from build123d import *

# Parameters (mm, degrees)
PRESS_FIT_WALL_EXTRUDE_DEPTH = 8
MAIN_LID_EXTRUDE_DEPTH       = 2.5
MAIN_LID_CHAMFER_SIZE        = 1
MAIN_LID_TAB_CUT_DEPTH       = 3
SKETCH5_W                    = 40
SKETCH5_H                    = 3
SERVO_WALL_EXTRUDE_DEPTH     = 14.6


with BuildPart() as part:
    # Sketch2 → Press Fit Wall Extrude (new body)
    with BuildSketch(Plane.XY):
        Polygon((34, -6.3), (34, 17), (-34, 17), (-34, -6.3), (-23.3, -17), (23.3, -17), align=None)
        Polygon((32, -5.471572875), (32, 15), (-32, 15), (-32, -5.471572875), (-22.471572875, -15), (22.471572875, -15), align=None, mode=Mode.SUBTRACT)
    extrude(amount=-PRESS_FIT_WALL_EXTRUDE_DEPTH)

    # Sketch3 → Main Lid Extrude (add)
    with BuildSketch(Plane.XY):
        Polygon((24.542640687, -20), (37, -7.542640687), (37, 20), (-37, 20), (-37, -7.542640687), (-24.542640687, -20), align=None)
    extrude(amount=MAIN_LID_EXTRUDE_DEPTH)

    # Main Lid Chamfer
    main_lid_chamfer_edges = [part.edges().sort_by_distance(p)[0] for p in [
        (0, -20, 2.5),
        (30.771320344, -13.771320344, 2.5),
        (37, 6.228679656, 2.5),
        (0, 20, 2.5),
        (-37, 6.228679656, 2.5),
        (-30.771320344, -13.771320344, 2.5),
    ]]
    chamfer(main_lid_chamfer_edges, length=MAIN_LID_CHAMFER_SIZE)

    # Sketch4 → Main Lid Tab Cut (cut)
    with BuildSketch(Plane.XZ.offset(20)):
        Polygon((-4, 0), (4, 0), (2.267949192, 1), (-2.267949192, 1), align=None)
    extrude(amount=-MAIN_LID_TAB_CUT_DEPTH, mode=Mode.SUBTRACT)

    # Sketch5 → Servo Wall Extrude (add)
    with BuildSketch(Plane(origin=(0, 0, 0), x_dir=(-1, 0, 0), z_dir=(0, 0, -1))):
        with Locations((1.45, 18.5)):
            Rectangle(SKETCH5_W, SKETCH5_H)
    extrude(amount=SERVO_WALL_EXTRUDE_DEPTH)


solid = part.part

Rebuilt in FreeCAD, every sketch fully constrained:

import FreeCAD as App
import Part
import Sketcher
Q = App.Units.Quantity


def edges_at(feature, points):
    """Names of the edges that pass closest to the given points."""
    edges = feature.Shape.Edges
    near = lambda p: min(range(len(edges)), key=lambda i: edges[i].distToShape(Part.Vertex(*p))[0])
    return sorted({f"Edge{near(p) + 1}" for p in points})

doc = App.newDocument("Part")
body = doc.addObject("PartDesign::Body", "Body")

sketch1 = body.newObject("Sketcher::SketchObject", "Sketch")
sketch1.AttachmentSupport = (doc.getObject("XY_Plane"), [""])
sketch1.MapMode = "FlatFace"
sketch1.addGeometry([
    Part.LineSegment(App.Vector(34, -6, 0), App.Vector(34, 17, 0)),
    Part.LineSegment(App.Vector(34, 17, 0), App.Vector(-34, 17, 0)),
    Part.LineSegment(App.Vector(-34, 17, 0), App.Vector(-34, -6, 0)),
    Part.LineSegment(App.Vector(-34, -6, 0), App.Vector(-23, -17, 0)),
    Part.LineSegment(App.Vector(-23, -17, 0), App.Vector(23, -17, 0)),
    Part.LineSegment(App.Vector(23, -17, 0), App.Vector(34, -6, 0)),
    Part.LineSegment(App.Vector(32, 15, 0), App.Vector(32, -5, 0)),
    Part.LineSegment(App.Vector(32, -5, 0), App.Vector(22, -15, 0)),
    Part.LineSegment(App.Vector(22, -15, 0), App.Vector(-22, -15, 0)),
    Part.LineSegment(App.Vector(-22, -15, 0), App.Vector(-32, -5, 0)),
    Part.LineSegment(App.Vector(-32, -5, 0), App.Vector(-32, 15, 0)),
    Part.LineSegment(App.Vector(-32, 15, 0), App.Vector(32, 15, 0)),
], False)
sketch1.addConstraint([
    Sketcher.Constraint("Coincident", 0, 2, 1, 1),
    Sketcher.Constraint("Coincident", 1, 2, 2, 1),
    Sketcher.Constraint("Coincident", 2, 2, 3, 1),
    Sketcher.Constraint("Coincident", 3, 2, 4, 1),
    Sketcher.Constraint("Coincident", 4, 2, 5, 1),
    Sketcher.Constraint("Coincident", 5, 2, 0, 1),
    Sketcher.Constraint("Coincident", 6, 2, 7, 1),
    Sketcher.Constraint("Coincident", 7, 2, 8, 1),
    Sketcher.Constraint("Coincident", 8, 2, 9, 1),
    Sketcher.Constraint("Coincident", 9, 2, 10, 1),
    Sketcher.Constraint("Coincident", 10, 2, 11, 1),
    Sketcher.Constraint("Coincident", 11, 2, 6, 1),
    Sketcher.Constraint("Vertical", 0),
    Sketcher.Constraint("Horizontal", 1),
    Sketcher.Constraint("Vertical", 2),
    Sketcher.Constraint("Horizontal", 4),
    Sketcher.Constraint("Vertical", 6),
    Sketcher.Constraint("Horizontal", 8),
    Sketcher.Constraint("Vertical", 10),
    Sketcher.Constraint("Horizontal", 11),
    Sketcher.Constraint("Symmetric", 2, 2, 5, 2, -2),
    Sketcher.Constraint("Symmetric", 6, 2, 9, 2, -2),
    Sketcher.Constraint("Perpendicular", 3, 5),
    Sketcher.Constraint("Parallel", 5, 7),
    Sketcher.Constraint("Perpendicular", 7, 9),
    Sketcher.Constraint("Equal", 3, 5),
    Sketcher.Constraint("DistanceX", 1, 2, 1, 1, 68.0),
    Sketcher.Constraint("DistanceX", 11, 1, 11, 2, 64.0),
    Sketcher.Constraint("DistanceX", 4, 1, 4, 2, 46.6),
    Sketcher.Constraint("DistanceY", 0, 1, 0, 2, 23.3),
    Sketcher.Constraint("DistanceY", -1, 1, 0, 2, 17.0),
    Sketcher.Constraint("DistanceY", 7, 2, -1, 1, 15.0),
    Sketcher.Constraint("DistanceY", -1, 1, 10, 2, 15.0),
    Sketcher.Constraint("Distance", 7, 13.475231),
])
pad1 = body.newObject("PartDesign::Pad", "Pad")
pad1.Profile = sketch1
pad1.Length = 8
pad1.Reversed = True

sketch2 = body.newObject("Sketcher::SketchObject", "Sketch001")
sketch2.AttachmentSupport = (doc.getObject("XY_Plane"), [""])
sketch2.MapMode = "FlatFace"
sketch2.addGeometry([
    Part.LineSegment(App.Vector(25, -20, 0), App.Vector(37, -8, 0)),
    Part.LineSegment(App.Vector(37, -8, 0), App.Vector(37, 20, 0)),
    Part.LineSegment(App.Vector(37, 20, 0), App.Vector(-37, 20, 0)),
    Part.LineSegment(App.Vector(-37, 20, 0), App.Vector(-37, -8, 0)),
    Part.LineSegment(App.Vector(-37, -8, 0), App.Vector(-25, -20, 0)),
    Part.LineSegment(App.Vector(-25, -20, 0), App.Vector(25, -20, 0)),
], False)
sketch2.addConstraint([
    Sketcher.Constraint("Coincident", 0, 2, 1, 1),
    Sketcher.Constraint("Coincident", 1, 2, 2, 1),
    Sketcher.Constraint("Coincident", 2, 2, 3, 1),
    Sketcher.Constraint("Coincident", 3, 2, 4, 1),
    Sketcher.Constraint("Coincident", 4, 2, 5, 1),
    Sketcher.Constraint("Coincident", 5, 2, 0, 1),
    Sketcher.Constraint("Vertical", 1),
    Sketcher.Constraint("Horizontal", 2),
    Sketcher.Constraint("Vertical", 3),
    Sketcher.Constraint("Horizontal", 5),
    Sketcher.Constraint("Symmetric", 0, 2, 3, 2, -2),
    Sketcher.Constraint("Perpendicular", 0, 4),
    Sketcher.Constraint("Equal", 0, 4),
    Sketcher.Constraint("DistanceX", 2, 2, 2, 1, 74.0),
    Sketcher.Constraint("DistanceY", -1, 1, 1, 2, 20.0),
    Sketcher.Constraint("DistanceY", 4, 2, -1, 1, 20.0),
    Sketcher.Constraint("DistanceX", 5, 1, 5, 2, 49.085281),
])
pad2 = body.newObject("PartDesign::Pad", "Pad001")
pad2.Profile = sketch2
pad2.Length = 2.5
doc.recompute()

chamfer = body.newObject("PartDesign::Chamfer", "Chamfer")
chamfer.Base = (pad2, edges_at(pad2, [
    (0, -20, 2.5),
    (30.771, -13.771, 2.5),
    (37, 6.229, 2.5),
    (0, 20, 2.5),
    (-37, 6.229, 2.5),
    (-30.771, -13.771, 2.5),
]))
chamfer.Size = 1

sketch3 = body.newObject("Sketcher::SketchObject", "Sketch002")
sketch3.AttachmentSupport = (doc.getObject("XZ_Plane"), [""])
sketch3.MapMode = "FlatFace"
sketch3.AttachmentOffset = App.Placement(App.Vector(0, 0, 20), App.Rotation())
sketch3.addGeometry([
    Part.LineSegment(App.Vector(-4, 0, 0), App.Vector(4, 0, 0)),
    Part.LineSegment(App.Vector(4, 0, 0), App.Vector(2.3, 1, 0)),
    Part.LineSegment(App.Vector(2.3, 1, 0), App.Vector(-2.3, 1, 0)),
    Part.LineSegment(App.Vector(-2.3, 1, 0), App.Vector(-4, 0, 0)),
], False)
sketch3.addConstraint([
    Sketcher.Constraint("Coincident", 0, 2, 1, 1),
    Sketcher.Constraint("Coincident", 1, 2, 2, 1),
    Sketcher.Constraint("Coincident", 2, 2, 3, 1),
    Sketcher.Constraint("Coincident", 3, 2, 0, 1),
    Sketcher.Constraint("Horizontal", 0),
    Sketcher.Constraint("Horizontal", 2),
    Sketcher.Constraint("Symmetric", 0, 2, 3, 2, -1, 1),
    Sketcher.Constraint("Equal", 1, 3),
    Sketcher.Constraint("DistanceX", 0, 1, 0, 2, 8.0),
    Sketcher.Constraint("Angle", 1, Q("150 deg")),
    Sketcher.Constraint("Distance", 1, 2.0),
])
pocket1 = body.newObject("PartDesign::Pocket", "Pocket")
pocket1.Profile = sketch3
pocket1.Length = 3

sketch4 = body.newObject("Sketcher::SketchObject", "Sketch003")
sketch4.AttachmentSupport = (doc.getObject("XY_Plane"), [""])
sketch4.MapMode = "FlatFace"
sketch4.addGeometry([
    Part.LineSegment(App.Vector(18.6, 20, 0), App.Vector(18.6, 17, 0)),
    Part.LineSegment(App.Vector(18.6, 17, 0), App.Vector(-21.4, 17, 0)),
    Part.LineSegment(App.Vector(-21.4, 17, 0), App.Vector(-21.4, 20, 0)),
    Part.LineSegment(App.Vector(-21.4, 20, 0), App.Vector(18.6, 20, 0)),
], False)
sketch4.addConstraint([
    Sketcher.Constraint("Coincident", 0, 2, 1, 1),
    Sketcher.Constraint("Coincident", 1, 2, 2, 1),
    Sketcher.Constraint("Coincident", 2, 2, 3, 1),
    Sketcher.Constraint("Coincident", 3, 2, 0, 1),
    Sketcher.Constraint("Vertical", 0),
    Sketcher.Constraint("Horizontal", 1),
    Sketcher.Constraint("Vertical", 2),
    Sketcher.Constraint("Horizontal", 3),
    Sketcher.Constraint("DistanceX", 1, 2, 1, 1, 40.0),
    Sketcher.Constraint("DistanceY", 0, 2, 0, 1, 3.0),
    Sketcher.Constraint("DistanceY", -1, 1, 0, 2, 17.0),
    Sketcher.Constraint("DistanceX", -1, 1, 0, 2, 18.55),
])
pad3 = body.newObject("PartDesign::Pad", "Pad002")
pad3.Profile = sketch4
pad3.Length = 14.6
pad3.Reversed = True

doc.recompute()
